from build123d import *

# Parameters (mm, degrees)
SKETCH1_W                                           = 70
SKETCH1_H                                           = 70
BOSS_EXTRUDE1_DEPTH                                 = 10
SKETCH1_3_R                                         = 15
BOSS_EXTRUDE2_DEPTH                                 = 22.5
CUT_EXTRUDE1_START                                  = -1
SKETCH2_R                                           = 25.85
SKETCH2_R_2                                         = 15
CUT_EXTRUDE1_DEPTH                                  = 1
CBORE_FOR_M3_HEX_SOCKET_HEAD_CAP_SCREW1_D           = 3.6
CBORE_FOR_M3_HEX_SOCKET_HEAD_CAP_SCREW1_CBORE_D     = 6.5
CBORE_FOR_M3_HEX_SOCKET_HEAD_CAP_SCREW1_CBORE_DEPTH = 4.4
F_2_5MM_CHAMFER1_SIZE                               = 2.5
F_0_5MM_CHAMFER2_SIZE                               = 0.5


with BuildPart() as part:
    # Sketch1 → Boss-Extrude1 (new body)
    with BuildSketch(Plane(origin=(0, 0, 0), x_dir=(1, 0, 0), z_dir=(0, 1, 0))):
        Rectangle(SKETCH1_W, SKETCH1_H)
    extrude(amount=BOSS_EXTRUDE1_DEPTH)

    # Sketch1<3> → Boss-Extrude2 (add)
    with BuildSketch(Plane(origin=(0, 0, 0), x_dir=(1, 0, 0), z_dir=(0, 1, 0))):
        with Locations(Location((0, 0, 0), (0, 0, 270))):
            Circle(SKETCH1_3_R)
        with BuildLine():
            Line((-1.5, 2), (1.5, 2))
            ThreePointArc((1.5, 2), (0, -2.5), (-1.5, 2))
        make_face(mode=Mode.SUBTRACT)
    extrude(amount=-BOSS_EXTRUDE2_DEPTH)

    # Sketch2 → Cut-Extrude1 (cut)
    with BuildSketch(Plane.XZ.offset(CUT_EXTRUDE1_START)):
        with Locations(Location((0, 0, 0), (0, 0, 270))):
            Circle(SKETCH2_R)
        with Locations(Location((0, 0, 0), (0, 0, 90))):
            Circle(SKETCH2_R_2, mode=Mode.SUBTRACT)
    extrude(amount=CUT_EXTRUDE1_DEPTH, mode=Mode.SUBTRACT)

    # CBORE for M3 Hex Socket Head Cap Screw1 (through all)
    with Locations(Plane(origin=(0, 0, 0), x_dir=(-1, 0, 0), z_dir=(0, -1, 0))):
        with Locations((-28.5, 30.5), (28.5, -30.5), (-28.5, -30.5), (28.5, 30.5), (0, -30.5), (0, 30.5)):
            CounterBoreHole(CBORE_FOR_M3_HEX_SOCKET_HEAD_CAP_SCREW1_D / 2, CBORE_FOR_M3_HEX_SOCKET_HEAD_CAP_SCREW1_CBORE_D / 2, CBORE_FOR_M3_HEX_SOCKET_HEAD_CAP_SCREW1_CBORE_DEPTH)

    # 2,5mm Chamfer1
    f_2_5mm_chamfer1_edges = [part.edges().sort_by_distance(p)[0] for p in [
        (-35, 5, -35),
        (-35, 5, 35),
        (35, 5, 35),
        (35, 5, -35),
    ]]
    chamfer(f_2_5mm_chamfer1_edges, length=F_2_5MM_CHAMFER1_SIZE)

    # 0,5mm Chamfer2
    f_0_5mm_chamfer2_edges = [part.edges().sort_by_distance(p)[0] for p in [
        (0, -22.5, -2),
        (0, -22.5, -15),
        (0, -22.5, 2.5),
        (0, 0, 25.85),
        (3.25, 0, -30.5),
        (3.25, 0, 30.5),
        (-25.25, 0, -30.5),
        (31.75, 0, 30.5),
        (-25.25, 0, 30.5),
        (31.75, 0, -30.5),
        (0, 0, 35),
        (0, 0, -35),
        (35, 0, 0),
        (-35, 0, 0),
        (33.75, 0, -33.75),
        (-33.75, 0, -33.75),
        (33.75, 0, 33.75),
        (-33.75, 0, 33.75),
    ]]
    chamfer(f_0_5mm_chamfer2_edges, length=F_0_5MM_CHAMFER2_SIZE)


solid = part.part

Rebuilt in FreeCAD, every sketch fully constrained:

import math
import FreeCAD as App
import Part
import Sketcher
from FreeCAD import Vector


def edges_at(feature, points):
    """Names of the edges that pass closest to the given points."""
    edges = feature.Shape.Edges
    near = lambda p: min(range(len(edges)), key=lambda i: edges[i].distToShape(Part.Vertex(*p))[0])
    return sorted({f"Edge{near(p) + 1}" for p in points})


def add_polygon(sketch, points):
    """Adds a closed chain of lines whose ends are joined by coincident constraints."""
    first, n = sketch.GeometryCount, len(points)
    for a, b in zip(points, points[1:] + points[:1]):
        sketch.addGeometry(Part.LineSegment(App.Vector(*a, 0), App.Vector(*b, 0)), False)
    for i in range(n):
        sketch.addConstraint(Sketcher.Constraint("Coincident", first + i, 2, first + (i + 1) % n, 1))

doc = App.newDocument("Part")
body = doc.addObject("PartDesign::Body", "Body")

# Sketch on XZ plane
sketch1 = body.newObject("Sketcher::SketchObject", "Sketch")
sketch1.AttachmentSupport = (doc.getObject("XZ_Plane"), [""])
sketch1.MapMode = "FlatFace"
add_polygon(sketch1, [(-35, -35), (-35, 35), (35, 35), (35, -35)])  # lines 0-3
sketch1.addConstraint(Sketcher.Constraint("Vertical", 0))
sketch1.addConstraint(Sketcher.Constraint("Horizontal", 1))
sketch1.addConstraint(Sketcher.Constraint("Vertical", 2))
sketch1.addConstraint(Sketcher.Constraint("Horizontal", 3))
sketch1.addConstraint(Sketcher.Constraint("Symmetric", 0, 2, 2, 2, -1, 1))
sketch1.addConstraint(Sketcher.Constraint("Equal", 3, 0))
sketch1.addConstraint(Sketcher.Constraint("DistanceX", 1, 1, 1, 2, 70.0))
pad1 = body.newObject("PartDesign::Pad", "Pad")
pad1.Profile = sketch1
pad1.Length = 10
pad1.Reversed = True

# Sketch on XZ plane
sketch2 = body.newObject("Sketcher::SketchObject", "Sketch001")
sketch2.AttachmentSupport = (doc.getObject("XZ_Plane"), [""])
sketch2.MapMode = "FlatFace"
sketch2.addGeometry(Part.Circle(Vector(0, 0, 0), Vector(0, 0, 1), 15), False)
sketch2.addGeometry(Part.ArcOfCircle(Part.Circle(Vector(0, 0, 0), Vector(0, 0, 1), 2.5), math.radians(-53), math.radians(233)), False)
sketch2.addGeometry(Part.LineSegment(Vector(-1.5, -2, 0), Vector(1.5, -2, 0)), False)
sketch2.addConstraint(Sketcher.Constraint("Coincident", 1, 1, 2, 2))
sketch2.addConstraint(Sketcher.Constraint("Coincident", 2, 1, 1, 2))
sketch2.addConstraint(Sketcher.Constraint("Horizontal", 2))
sketch2.addConstraint(Sketcher.Constraint("Coincident", 0, 3, -1, 1))
sketch2.addConstraint(Sketcher.Constraint("Coincident", 1, 3, -1, 1))
sketch2.addConstraint(Sketcher.Constraint("Diameter", 0, 30.0))
sketch2.addConstraint(Sketcher.Constraint("Radius", 1, 2.5))
sketch2.addConstraint(Sketcher.Constraint("DistanceX", 2, 1, 2, 2, 3.0))
pad2 = body.newObject("PartDesign::Pad", "Pad001")
pad2.Profile = sketch2
pad2.Length = 22.5

# Sketch on XZ plane
sketch3 = body.newObject("Sketcher::SketchObject", "Sketch002")
sketch3.AttachmentSupport = (doc.getObject("XZ_Plane"), [""])
sketch3.MapMode = "FlatFace"
sketch3.AttachmentOffset = App.Placement(Vector(0, 0, -1), App.Rotation())
sketch3.addGeometry(Part.Circle(Vector(0, 0, 0), Vector(0, 0, 1), 26), False)
sketch3.addGeometry(Part.Circle(Vector(0, 0, 0), Vector(0, 0, 1), 15), False)
sketch3.addConstraint(Sketcher.Constraint("Coincident", 0, 3, -1, 1))
sketch3.addConstraint(Sketcher.Constraint("Coincident", 1, 3, -1, 1))
sketch3.addConstraint(Sketcher.Constraint("Diameter", 1, 30.0))
sketch3.addConstraint(Sketcher.Constraint("Diameter", 0, 51.7))
pocket1 = body.newObject("PartDesign::Pocket", "Pocket")
pocket1.Profile = sketch3
pocket1.Length = 1
pocket1.Reversed = True

# Sketch on XZ plane
sketch4 = body.newObject("Sketcher::SketchObject", "Sketch003")
sketch4.AttachmentSupport = (doc.getObject("XZ_Plane"), [""])
sketch4.MapMode = "FlatFace"
sketch4.addGeometry(Part.Circle(Vector(28.5, -30.5, 0), Vector(0, 0, 1), 1.8), False)
sketch4.addGeometry(Part.Circle(Vector(-28.5, 30.5, 0), Vector(0, 0, 1), 1.8), False)
sketch4.addGeometry(Part.Circle(Vector(28.5, 30.5, 0), Vector(0, 0, 1), 1.8), False)
sketch4.addGeometry(Part.Circle(Vector(-28.5, -30.5, 0), Vector(0, 0, 1), 1.8), False)
sketch4.addGeometry(Part.Circle(Vector(0, 30.5, 0), Vector(0, 0, 1), 1.8), False)
sketch4.addGeometry(Part.Circle(Vector(0, -30.5, 0), Vector(0, 0, 1), 1.8), False)
sketch4.addConstraint(Sketcher.Constraint("Equal", 0, 1))
sketch4.addConstraint(Sketcher.Constraint("Equal", 1, 2))
sketch4.addConstraint(Sketcher.Constraint("Equal", 2, 3))
sketch4.addConstraint(Sketcher.Constraint("Equal", 3, 4))
sketch4.addConstraint(Sketcher.Constraint("Equal", 4, 5))
sketch4.addConstraint(Sketcher.Constraint("Symmetric", 0, 3, 1, 3, -1, 1))
sketch4.addConstraint(Sketcher.Constraint("Symmetric", 2, 3, 3, 3, -1, 1))
sketch4.addConstraint(Sketcher.Constraint("Symmetric", 4, 3, 5, 3, -1, 1))
sketch4.addConstraint(Sketcher.Constraint("Symmetric", 1, 3, 2, 3, -2))
sketch4.addConstraint(Sketcher.Constraint("PointOnObject", 4, 3, -2))
sketch4.addConstraint(Sketcher.Constraint("Horizontal", 2, 3, 4, 3))
sketch4.addConstraint(Sketcher.Constraint("Diameter", 0, 3.6))
sketch4.addConstraint(Sketcher.Constraint("DistanceX", 1, 3, 0, 3, 57.0))
sketch4.addConstraint(Sketcher.Constraint("DistanceY", 0, 3, 1, 3, 61.0))
doc.recompute()
hole = body.newObject("PartDesign::Hole", "Hole")
hole.Profile = sketch4
hole.ThreadType = "None"
hole.Diameter = 3.6
hole.DepthType = "ThroughAll"
hole.HoleCutType = "Counterbore"
hole.HoleCutDiameter = 6.5
hole.HoleCutDepth = 4.4
doc.recompute()

chamfer = body.newObject("PartDesign::Chamfer", "Chamfer")
chamfer.Base = (hole, edges_at(hole, [
    (-35, 5, -35),
    (-35, 5, 35),
    (35, 5, 35),
    (35, 5, -35),
]))
chamfer.Size = 2.5
doc.recompute()

chamfer2 = body.newObject("PartDesign::Chamfer", "Chamfer001")
chamfer2.Base = (chamfer, edges_at(chamfer, [
    (0, -22.5, -2),
    (0, -22.5, -15),
    (0, -22.5, 2.5),
    (0, 0, 25.85),
    (3.25, 0, -30.5),
    (3.25, 0, 30.5),
    (-25.25, 0, -30.5),
    (31.75, 0, 30.5),
    (-25.25, 0, 30.5),
    (31.75, 0, -30.5),
    (0, 0, 35),
    (0, 0, -35),
    (35, 0, 0),
    (-35, 0, 0),
    (33.75, 0, -33.75),
    (-33.75, 0, -33.75),
    (33.75, 0, 33.75),
    (-33.75, 0, 33.75),
]))
chamfer2.Size = 0.5

doc.recompute()
